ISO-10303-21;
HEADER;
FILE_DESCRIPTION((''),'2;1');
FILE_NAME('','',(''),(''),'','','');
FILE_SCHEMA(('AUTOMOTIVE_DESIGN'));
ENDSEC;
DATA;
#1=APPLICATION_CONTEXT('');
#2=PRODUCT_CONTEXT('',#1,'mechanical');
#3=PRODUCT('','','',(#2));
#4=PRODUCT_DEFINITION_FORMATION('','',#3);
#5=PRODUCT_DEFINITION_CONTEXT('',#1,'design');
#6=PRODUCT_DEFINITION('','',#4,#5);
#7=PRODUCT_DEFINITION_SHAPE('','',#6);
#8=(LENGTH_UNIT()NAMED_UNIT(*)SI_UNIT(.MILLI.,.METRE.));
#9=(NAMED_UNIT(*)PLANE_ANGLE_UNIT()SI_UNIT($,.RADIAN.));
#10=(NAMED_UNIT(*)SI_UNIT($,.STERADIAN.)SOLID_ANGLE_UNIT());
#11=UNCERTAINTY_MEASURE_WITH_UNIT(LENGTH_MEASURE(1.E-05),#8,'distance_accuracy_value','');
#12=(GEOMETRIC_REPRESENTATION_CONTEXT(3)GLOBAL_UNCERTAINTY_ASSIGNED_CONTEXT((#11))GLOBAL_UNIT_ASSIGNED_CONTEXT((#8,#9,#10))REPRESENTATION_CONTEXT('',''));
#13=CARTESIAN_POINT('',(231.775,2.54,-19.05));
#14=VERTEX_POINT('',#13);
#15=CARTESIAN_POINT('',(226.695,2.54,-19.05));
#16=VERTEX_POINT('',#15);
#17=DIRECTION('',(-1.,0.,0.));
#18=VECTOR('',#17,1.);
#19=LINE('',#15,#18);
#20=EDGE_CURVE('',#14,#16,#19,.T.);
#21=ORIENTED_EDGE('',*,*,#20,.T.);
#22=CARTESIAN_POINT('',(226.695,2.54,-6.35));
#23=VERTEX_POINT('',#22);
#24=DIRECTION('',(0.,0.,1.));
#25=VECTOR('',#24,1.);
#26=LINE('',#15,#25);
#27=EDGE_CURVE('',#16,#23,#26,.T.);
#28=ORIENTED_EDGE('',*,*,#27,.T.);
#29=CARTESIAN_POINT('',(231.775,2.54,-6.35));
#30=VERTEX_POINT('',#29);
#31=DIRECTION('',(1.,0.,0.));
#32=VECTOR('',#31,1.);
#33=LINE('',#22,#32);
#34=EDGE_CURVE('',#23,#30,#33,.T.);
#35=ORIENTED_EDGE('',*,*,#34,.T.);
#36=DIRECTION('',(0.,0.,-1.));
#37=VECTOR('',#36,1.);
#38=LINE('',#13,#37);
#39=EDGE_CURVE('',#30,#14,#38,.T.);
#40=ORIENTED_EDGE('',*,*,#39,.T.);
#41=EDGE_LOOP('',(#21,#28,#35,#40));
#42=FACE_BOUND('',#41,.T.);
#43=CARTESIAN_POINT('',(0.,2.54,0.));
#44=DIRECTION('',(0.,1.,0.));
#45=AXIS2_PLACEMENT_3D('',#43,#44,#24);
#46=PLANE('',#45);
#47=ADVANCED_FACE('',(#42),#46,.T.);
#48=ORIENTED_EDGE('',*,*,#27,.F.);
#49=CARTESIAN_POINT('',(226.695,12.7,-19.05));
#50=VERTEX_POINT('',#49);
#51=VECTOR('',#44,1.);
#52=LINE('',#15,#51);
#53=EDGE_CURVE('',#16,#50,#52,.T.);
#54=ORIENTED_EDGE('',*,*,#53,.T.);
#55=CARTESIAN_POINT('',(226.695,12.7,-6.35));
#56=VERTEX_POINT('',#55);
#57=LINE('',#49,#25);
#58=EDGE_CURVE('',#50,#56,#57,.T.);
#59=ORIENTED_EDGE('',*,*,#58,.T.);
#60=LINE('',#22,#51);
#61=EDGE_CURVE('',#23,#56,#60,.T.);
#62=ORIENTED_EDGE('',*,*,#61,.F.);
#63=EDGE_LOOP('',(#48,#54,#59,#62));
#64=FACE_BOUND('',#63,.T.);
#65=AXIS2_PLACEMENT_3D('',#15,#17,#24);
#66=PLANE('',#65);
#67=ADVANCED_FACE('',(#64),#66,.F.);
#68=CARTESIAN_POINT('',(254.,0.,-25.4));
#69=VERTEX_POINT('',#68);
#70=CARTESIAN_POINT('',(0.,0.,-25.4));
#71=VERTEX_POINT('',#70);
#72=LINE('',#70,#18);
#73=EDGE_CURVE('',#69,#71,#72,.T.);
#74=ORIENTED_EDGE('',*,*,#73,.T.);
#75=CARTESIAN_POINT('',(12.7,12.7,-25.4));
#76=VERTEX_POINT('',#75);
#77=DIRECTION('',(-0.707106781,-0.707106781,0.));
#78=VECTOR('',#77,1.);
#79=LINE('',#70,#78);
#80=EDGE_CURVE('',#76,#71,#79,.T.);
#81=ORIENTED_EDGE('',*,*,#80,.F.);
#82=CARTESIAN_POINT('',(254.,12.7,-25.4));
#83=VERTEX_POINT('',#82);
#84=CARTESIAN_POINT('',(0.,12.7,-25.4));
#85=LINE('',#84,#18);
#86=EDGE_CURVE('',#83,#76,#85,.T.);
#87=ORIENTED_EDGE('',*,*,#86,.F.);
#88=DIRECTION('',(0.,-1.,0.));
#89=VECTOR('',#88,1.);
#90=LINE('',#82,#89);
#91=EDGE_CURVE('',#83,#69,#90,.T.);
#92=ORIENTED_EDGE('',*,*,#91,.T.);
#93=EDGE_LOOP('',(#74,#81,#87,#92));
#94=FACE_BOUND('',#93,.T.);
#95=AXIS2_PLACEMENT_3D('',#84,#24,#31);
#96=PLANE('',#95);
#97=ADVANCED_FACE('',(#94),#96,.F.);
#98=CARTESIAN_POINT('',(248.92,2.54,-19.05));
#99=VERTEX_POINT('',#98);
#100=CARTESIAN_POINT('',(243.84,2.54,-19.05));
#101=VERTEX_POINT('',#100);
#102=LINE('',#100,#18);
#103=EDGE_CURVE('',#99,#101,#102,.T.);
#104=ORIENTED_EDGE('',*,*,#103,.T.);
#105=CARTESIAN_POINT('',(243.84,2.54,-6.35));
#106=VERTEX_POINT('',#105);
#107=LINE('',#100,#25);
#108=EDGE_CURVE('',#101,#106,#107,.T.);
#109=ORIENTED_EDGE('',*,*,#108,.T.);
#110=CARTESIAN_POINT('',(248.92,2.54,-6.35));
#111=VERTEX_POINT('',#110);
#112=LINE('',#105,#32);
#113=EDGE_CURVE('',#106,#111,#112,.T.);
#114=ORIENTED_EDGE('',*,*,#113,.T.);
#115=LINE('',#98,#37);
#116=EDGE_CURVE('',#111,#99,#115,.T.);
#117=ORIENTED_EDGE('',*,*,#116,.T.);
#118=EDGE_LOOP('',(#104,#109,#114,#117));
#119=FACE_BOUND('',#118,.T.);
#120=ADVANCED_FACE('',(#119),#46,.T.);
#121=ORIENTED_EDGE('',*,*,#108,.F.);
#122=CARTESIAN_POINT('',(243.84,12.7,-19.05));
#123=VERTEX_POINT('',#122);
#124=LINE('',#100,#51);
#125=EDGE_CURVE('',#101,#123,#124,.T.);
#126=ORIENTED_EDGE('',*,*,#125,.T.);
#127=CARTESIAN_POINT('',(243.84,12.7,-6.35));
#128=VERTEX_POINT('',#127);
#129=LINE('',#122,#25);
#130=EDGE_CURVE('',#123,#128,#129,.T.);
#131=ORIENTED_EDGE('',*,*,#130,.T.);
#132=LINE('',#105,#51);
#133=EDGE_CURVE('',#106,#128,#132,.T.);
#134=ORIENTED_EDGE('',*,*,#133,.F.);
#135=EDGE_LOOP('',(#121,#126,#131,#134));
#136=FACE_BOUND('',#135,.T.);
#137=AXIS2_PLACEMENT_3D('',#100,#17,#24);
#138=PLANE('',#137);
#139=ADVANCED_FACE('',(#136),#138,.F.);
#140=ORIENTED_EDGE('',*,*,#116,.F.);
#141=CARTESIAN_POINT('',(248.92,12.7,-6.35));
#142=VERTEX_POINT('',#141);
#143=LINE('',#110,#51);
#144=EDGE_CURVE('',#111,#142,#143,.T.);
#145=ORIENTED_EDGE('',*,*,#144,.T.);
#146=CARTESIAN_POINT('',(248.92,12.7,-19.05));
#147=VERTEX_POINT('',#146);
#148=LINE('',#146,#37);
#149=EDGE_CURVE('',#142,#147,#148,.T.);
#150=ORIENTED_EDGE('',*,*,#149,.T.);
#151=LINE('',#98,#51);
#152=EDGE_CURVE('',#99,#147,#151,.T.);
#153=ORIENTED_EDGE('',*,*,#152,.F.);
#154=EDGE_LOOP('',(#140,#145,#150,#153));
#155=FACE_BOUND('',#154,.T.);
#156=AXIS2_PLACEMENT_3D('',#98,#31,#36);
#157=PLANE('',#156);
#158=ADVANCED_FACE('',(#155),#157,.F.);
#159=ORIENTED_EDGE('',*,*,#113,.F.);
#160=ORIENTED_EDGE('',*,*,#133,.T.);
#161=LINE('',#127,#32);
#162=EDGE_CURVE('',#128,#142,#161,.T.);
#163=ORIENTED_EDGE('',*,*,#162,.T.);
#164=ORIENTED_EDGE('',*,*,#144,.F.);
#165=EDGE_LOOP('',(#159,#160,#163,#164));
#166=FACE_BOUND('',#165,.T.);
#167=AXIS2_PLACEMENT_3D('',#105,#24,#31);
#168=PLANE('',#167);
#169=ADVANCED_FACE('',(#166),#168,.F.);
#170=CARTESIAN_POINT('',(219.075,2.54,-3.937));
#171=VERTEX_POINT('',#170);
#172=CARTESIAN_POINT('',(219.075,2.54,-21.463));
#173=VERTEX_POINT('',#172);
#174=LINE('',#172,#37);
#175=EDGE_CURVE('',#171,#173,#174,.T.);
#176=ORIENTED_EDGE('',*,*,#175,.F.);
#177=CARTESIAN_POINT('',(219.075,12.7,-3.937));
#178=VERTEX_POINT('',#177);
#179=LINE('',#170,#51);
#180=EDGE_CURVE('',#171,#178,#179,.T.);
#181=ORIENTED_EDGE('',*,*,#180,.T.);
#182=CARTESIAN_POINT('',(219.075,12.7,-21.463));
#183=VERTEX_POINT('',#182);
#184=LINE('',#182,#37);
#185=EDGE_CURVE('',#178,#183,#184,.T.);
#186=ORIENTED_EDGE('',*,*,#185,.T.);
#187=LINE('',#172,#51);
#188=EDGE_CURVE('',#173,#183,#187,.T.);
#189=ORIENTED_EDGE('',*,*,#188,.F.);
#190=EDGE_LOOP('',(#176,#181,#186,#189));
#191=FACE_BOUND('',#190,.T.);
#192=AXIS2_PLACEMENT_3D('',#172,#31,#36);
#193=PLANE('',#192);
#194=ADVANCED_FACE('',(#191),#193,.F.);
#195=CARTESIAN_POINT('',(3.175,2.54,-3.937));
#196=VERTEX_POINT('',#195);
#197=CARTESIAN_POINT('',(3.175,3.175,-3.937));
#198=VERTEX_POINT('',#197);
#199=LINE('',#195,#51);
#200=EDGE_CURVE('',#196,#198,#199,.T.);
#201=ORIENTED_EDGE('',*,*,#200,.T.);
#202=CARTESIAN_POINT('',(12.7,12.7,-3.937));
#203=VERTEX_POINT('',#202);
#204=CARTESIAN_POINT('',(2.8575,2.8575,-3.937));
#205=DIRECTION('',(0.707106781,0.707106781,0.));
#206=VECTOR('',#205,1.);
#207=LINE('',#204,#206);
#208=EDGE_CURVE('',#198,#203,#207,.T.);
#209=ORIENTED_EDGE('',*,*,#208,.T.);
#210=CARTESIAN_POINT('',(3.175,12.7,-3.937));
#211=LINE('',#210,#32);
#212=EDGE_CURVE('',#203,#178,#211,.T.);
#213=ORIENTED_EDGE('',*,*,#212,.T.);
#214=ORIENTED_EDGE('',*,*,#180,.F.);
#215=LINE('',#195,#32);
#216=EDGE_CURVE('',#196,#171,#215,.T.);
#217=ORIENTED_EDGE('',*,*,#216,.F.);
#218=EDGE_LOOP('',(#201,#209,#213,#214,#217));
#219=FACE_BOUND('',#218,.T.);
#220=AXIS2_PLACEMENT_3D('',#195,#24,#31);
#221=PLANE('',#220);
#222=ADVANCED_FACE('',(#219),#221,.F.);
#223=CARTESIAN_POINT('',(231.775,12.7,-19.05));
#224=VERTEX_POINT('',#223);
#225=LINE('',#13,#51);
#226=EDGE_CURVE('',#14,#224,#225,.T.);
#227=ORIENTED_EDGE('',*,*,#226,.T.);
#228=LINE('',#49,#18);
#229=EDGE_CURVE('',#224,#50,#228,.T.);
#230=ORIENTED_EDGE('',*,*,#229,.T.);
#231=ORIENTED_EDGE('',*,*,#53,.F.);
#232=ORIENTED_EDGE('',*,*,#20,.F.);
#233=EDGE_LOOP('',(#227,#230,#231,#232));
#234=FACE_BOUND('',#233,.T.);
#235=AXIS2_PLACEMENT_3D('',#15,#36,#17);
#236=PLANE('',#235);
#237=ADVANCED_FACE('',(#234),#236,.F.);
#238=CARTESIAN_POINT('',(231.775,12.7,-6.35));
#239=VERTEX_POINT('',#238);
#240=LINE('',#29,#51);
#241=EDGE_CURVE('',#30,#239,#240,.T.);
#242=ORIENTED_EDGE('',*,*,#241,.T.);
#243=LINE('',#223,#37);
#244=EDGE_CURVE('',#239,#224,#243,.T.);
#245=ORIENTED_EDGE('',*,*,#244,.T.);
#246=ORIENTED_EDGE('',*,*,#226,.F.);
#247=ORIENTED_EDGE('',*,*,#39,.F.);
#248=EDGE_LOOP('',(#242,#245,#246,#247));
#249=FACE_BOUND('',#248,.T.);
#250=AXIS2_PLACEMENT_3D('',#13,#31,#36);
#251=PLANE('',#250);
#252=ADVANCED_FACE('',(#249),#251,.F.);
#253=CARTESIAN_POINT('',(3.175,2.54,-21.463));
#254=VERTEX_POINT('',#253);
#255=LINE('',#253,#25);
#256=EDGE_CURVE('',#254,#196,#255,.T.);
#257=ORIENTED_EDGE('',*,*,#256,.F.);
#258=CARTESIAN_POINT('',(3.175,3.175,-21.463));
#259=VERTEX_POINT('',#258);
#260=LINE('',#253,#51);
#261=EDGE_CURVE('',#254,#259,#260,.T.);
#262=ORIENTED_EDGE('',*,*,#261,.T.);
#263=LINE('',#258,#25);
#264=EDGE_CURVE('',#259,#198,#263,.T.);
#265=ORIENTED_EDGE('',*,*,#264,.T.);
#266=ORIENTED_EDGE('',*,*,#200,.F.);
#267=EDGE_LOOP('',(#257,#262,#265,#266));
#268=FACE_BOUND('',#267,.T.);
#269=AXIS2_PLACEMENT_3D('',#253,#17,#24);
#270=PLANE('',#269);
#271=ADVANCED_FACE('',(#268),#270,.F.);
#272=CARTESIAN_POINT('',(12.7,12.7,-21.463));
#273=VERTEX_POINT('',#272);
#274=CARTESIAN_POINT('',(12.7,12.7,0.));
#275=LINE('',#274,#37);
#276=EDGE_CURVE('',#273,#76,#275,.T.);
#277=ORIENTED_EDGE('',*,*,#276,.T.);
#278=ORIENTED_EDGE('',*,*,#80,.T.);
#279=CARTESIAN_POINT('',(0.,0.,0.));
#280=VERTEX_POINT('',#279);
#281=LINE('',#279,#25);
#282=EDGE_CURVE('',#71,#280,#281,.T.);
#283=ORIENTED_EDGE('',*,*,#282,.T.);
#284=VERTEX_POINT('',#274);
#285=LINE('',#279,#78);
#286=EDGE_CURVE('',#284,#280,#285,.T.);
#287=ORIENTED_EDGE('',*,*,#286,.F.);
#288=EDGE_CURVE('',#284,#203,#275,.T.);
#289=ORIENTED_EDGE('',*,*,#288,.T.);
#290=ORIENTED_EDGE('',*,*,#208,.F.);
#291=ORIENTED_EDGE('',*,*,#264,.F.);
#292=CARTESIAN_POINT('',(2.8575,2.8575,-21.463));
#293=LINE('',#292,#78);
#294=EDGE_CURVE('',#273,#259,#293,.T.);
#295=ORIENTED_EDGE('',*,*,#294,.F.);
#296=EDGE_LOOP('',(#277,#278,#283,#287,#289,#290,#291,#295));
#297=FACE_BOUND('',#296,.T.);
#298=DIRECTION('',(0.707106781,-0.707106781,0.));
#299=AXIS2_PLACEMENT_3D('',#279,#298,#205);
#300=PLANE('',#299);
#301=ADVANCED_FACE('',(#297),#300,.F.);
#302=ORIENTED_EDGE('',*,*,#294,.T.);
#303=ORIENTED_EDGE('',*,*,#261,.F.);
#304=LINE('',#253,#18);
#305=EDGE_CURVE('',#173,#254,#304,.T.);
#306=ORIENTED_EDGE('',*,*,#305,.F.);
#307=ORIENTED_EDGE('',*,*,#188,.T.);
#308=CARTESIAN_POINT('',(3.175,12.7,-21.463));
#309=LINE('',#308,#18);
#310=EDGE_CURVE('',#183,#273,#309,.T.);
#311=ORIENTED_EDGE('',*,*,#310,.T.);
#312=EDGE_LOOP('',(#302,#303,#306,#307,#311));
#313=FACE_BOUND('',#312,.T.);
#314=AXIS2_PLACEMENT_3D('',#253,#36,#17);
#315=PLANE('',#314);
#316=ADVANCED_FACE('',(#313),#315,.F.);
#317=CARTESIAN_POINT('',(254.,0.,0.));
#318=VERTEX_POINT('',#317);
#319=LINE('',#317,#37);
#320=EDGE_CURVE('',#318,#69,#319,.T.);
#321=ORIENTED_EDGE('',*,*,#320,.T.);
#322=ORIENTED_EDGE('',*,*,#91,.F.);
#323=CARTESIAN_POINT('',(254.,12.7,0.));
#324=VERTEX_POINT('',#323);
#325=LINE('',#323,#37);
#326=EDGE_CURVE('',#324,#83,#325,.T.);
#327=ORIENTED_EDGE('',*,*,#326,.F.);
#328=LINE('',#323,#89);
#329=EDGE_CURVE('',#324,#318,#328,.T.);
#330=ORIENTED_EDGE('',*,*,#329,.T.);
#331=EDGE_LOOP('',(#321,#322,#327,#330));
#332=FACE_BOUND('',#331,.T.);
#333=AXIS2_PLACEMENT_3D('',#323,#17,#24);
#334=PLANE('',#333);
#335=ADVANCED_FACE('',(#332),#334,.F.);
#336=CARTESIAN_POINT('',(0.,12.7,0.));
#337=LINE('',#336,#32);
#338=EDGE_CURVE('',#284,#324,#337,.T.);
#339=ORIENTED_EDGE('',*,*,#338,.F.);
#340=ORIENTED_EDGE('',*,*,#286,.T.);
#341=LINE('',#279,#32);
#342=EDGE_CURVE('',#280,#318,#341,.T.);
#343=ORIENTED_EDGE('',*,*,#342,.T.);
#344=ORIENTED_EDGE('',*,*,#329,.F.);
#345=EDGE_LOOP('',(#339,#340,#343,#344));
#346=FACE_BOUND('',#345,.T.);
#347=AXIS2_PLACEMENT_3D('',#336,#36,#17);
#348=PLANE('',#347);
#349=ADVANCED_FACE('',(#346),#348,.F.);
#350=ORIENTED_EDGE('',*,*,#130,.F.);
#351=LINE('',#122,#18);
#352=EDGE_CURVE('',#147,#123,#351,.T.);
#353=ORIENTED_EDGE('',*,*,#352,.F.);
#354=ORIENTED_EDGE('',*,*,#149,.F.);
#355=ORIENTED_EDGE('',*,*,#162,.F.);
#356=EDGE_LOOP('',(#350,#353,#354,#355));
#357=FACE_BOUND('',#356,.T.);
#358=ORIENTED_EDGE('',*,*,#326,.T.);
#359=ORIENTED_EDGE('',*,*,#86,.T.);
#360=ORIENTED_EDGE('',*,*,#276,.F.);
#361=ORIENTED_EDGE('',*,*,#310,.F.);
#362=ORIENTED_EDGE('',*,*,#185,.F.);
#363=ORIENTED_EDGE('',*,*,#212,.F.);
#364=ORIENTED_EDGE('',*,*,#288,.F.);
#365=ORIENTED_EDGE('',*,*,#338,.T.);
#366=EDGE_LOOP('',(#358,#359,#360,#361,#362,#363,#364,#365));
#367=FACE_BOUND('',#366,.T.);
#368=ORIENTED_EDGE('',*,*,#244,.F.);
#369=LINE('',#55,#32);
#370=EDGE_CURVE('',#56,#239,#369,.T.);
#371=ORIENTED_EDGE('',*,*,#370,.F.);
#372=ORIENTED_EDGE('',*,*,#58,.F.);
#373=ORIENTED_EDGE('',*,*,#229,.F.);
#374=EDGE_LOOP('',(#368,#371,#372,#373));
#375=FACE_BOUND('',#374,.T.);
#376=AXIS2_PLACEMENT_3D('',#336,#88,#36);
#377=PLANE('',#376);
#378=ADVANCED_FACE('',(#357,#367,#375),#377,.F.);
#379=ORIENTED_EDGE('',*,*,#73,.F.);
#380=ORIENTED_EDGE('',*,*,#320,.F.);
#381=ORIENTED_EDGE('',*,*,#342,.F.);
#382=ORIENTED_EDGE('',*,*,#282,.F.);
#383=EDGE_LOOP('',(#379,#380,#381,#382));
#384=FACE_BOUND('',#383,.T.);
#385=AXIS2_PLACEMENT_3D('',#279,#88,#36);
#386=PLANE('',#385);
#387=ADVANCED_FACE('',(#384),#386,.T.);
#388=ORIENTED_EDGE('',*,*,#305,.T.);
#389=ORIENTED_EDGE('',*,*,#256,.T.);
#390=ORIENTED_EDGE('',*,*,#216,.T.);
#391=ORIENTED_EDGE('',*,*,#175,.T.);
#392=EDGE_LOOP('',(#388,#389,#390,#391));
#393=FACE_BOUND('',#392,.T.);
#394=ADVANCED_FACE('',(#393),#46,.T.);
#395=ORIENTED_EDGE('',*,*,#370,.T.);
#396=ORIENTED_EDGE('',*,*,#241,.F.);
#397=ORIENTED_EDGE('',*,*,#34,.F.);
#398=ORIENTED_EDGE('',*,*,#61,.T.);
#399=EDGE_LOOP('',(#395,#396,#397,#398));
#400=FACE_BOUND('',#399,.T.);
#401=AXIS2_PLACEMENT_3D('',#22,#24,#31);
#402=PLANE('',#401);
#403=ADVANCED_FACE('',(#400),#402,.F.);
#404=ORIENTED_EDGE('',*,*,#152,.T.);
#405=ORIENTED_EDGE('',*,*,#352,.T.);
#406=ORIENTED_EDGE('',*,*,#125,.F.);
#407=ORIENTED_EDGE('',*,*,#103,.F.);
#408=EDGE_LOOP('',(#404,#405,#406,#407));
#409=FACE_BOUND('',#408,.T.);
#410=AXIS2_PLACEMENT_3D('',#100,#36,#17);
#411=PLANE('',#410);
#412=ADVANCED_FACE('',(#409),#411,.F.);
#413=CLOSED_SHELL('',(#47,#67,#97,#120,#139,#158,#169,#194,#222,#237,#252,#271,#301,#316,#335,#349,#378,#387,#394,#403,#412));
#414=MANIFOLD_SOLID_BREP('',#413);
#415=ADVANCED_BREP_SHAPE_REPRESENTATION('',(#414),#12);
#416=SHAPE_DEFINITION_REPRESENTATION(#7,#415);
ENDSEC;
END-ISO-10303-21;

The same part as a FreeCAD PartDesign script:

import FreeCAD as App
import Part
import Sketcher
from FreeCAD import Vector
Q = App.Units.Quantity


def add_polygon(sketch, points):
    """Adds a closed chain of lines whose ends are joined by coincident constraints."""
    first, n = sketch.GeometryCount, len(points)
    for a, b in zip(points, points[1:] + points[:1]):
        sketch.addGeometry(Part.LineSegment(App.Vector(*a, 0), App.Vector(*b, 0)), False)
    for i in range(n):
        sketch.addConstraint(Sketcher.Constraint("Coincident", first + i, 2, first + (i + 1) % n, 1))

doc = App.newDocument("Part")
body = doc.addObject("PartDesign::Body", "Body")

# Sketch on XZ plane
sketch1 = doc.addObject("Sketcher::SketchObject", "Sketch")
body.addObject(sketch1)
sketch1.AttachmentSupport = (doc.XZ_Plane, [""])
sketch1.MapMode = "FlatFace"
add_polygon(sketch1, [(0, -25), (0, 0), (254, 0), (254, -25)])  # lines 0-3
sketch1.addConstraint([
    Sketcher.Constraint("Vertical", 0),
    Sketcher.Constraint("Horizontal", 1),
    Sketcher.Constraint("Vertical", 2),
    Sketcher.Constraint("Horizontal", 3),
    Sketcher.Constraint("Coincident", 0, 2, -1, 1),
    Sketcher.Constraint("DistanceX", 1, 1, 1, 2, Q("10 in")),
    Sketcher.Constraint("DistanceY", 0, 1, 0, 2, Q("1 in")),
])
pad1 = doc.addObject("PartDesign::Pad", "Pad")
body.addObject(pad1)
pad1.Profile = sketch1
pad1.Length = Q("0.5 in")
pad1.Reversed = True

# Sketch on XZ plane
sketch2 = doc.addObject("Sketcher::SketchObject", "Sketch001")
body.addObject(sketch2)
sketch2.AttachmentSupport = (doc.XZ_Plane, [""])
sketch2.MapMode = "FlatFace"
sketch2.AttachmentOffset = App.Placement(Vector(0, 0, -0.5 * 25.4), App.Rotation())
add_polygon(sketch2, [(3, -21), (3, -4), (219, -4), (219, -21)])  # lines 0-3
sketch2.addConstraint([
    Sketcher.Constraint("Vertical", 0),
    Sketcher.Constraint("Horizontal", 1),
    Sketcher.Constraint("Vertical", 2),
    Sketcher.Constraint("Horizontal", 3),
    Sketcher.Constraint("DistanceX", 1, 1, 1, 2, Q("8.5 in")),
    Sketcher.Constraint("DistanceY", 0, 1, 0, 2, Q("0.69 in")),
    Sketcher.Constraint("DistanceX", -1, 1, 0, 2, Q("0.125 in")),
    Sketcher.Constraint("DistanceY", 0, 2, -1, 1, Q("0.155 in")),
])
pocket1 = doc.addObject("PartDesign::Pocket", "Pocket")
body.addObject(pocket1)
pocket1.Profile = sketch2
pocket1.Length = Q("0.4 in")
pocket1.Reversed = True

# Sketch on XY plane
sketch3 = doc.addObject("Sketcher::SketchObject", "Sketch002")
body.addObject(sketch3)
sketch3.AttachmentSupport = (doc.XY_Plane, [""])
sketch3.MapMode = "FlatFace"
sketch3.AttachmentOffset = App.Placement(Vector(0, 0, -1 * 25.4), App.Rotation())
add_polygon(sketch3, [(13, 13), (0, 0), (0, 13)])  # lines 0-2
sketch3.addConstraint([
    Sketcher.Constraint("Vertical", 1),
    Sketcher.Constraint("Horizontal", 2),
    Sketcher.Constraint("Coincident", 0, 2, -1, 1),
    Sketcher.Constraint("Equal", 2, 1),
    Sketcher.Constraint("DistanceX", 2, 1, 2, 2, Q("0.5 in")),
])
pocket2 = doc.addObject("PartDesign::Pocket", "Pocket001")
body.addObject(pocket2)
pocket2.Profile = sketch3
pocket2.Type = "ThroughAll"
pocket2.Reversed = True

# Sketch on XZ plane
sketch4 = doc.addObject("Sketcher::SketchObject", "Sketch003")
body.addObject(sketch4)
sketch4.AttachmentSupport = (doc.XZ_Plane, [""])
sketch4.MapMode = "FlatFace"
sketch4.AttachmentOffset = App.Placement(Vector(0, 0, -0.5 * 25.4), App.Rotation())
add_polygon(sketch4, [(227, -19), (227, -6), (232, -6), (232, -19)])  # lines 0-3
add_polygon(sketch4, [(244, -19), (244, -6), (249, -6), (249, -19)])  # lines 4-7
sketch4.addConstraint([
    Sketcher.Constraint("Vertical", 0),
    Sketcher.Constraint("Horizontal", 1),
    Sketcher.Constraint("Vertical", 2),
    Sketcher.Constraint("Horizontal", 3),
    Sketcher.Constraint("Vertical", 4),
    Sketcher.Constraint("Horizontal", 5),
    Sketcher.Constraint("Vertical", 6),
    Sketcher.Constraint("Horizontal", 7),
    Sketcher.Constraint("Horizontal", 1, 2, 4, 2),
    Sketcher.Constraint("Horizontal", 3, 2, 6, 2),
    Sketcher.Constraint("Equal", 3, 5),
    Sketcher.Constraint("DistanceX", 1, 1, 1, 2, Q("0.2 in")),
    Sketcher.Constraint("DistanceY", 0, 1, 0, 2, Q("0.5 in")),
    Sketcher.Constraint("DistanceX", -1, 1, 4, 2, Q("9.6 in")),
    Sketcher.Constraint("DistanceY", 0, 2, -1, 1, Q("0.25 in")),
    Sketcher.Constraint("DistanceX", -1, 1, 0, 2, Q("8.925 in")),
])
pocket3 = doc.addObject("PartDesign::Pocket", "Pocket002")
body.addObject(pocket3)
pocket3.Profile = sketch4
pocket3.Length = Q("0.4 in")
pocket3.Reversed = True

doc.recompute()
